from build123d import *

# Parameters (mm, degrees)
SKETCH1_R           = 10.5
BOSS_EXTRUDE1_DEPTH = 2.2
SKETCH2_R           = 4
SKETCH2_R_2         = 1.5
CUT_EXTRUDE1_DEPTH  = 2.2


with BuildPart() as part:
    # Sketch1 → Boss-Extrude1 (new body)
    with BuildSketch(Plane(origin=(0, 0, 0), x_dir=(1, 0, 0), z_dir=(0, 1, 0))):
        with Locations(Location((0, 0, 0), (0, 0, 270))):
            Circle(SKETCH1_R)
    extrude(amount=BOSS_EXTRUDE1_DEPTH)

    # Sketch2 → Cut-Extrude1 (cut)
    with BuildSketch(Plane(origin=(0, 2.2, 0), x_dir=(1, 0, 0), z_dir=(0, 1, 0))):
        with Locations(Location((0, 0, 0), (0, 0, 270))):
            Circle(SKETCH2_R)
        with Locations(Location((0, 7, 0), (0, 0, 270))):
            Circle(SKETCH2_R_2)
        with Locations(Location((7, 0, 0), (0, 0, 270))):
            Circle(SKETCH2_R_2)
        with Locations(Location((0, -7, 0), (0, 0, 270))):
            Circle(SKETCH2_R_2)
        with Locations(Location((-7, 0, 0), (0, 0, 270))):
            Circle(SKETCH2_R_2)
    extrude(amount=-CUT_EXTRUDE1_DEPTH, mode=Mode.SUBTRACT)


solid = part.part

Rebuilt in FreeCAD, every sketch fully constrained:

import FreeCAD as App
import Part
import Sketcher
from FreeCAD import Vector

doc = App.newDocument("Part")
params = doc.addObject("Spreadsheet::Sheet", "Params")
for row, (alias, value) in enumerate([
    ("sketch1_diameter", "21 mm"),
    ("pad1_length", "2.2 mm"),
    ("sketch2_diameter", "8 mm"),
    ("sketch2_diameter2", "3 mm"),
    ("pocket1_length", "2.2 mm"),
], start=1):
    params.set(f"A{row}", alias)
    params.set(f"B{row}", "=" + value)
    params.setAlias(f"B{row}", alias)

body = doc.addObject("PartDesign::Body", "Body")

# Sketch on XZ plane
sketch1 = body.newObject("Sketcher::SketchObject", "Sketch")
sketch1.AttachmentSupport = (doc.getObject("XZ_Plane"), [""])
sketch1.MapMode = "FlatFace"
sketch1.addGeometry(Part.Circle(Vector(0, 0, 0), Vector(0, 0, 1), 10.5), False)
sketch1.addConstraint(Sketcher.Constraint("Coincident", 0, 3, -1, 1))
sketch1.addConstraint(Sketcher.Constraint("Diameter", 0, 21.0))
sketch1.setExpression("Constraints[1]", "Params.sketch1_diameter")
pad1 = body.newObject("PartDesign::Pad", "Pad")
pad1.Profile = sketch1
pad1.setExpression("Length", "Params.pad1_length")
pad1.Reversed = True

# Sketch on XZ plane
sketch2 = body.newObject("Sketcher::SketchObject", "Sketch001")
sketch2.AttachmentSupport = (doc.getObject("XZ_Plane"), [""])
sketch2.MapMode = "FlatFace"
sketch2.AttachmentOffset = App.Placement(Vector(0, 0, -2.2), App.Rotation())
sketch2.addGeometry(Part.Circle(Vector(0, 0, 0), Vector(0, 0, 1), 4), False)
sketch2.addGeometry(Part.Circle(Vector(0, -7, 0), Vector(0, 0, 1), 1.5), False)
sketch2.addGeometry(Part.Circle(Vector(7, 0, 0), Vector(0, 0, 1), 1.5), False)
sketch2.addGeometry(Part.Circle(Vector(0, 7, 0), Vector(0, 0, 1), 1.5), False)
sketch2.addGeometry(Part.Circle(Vector(-7, 0, 0), Vector(0, 0, 1), 1.5), False)
sketch2.addConstraint(Sketcher.Constraint("Coincident", 0, 3, -1, 1))
sketch2.addConstraint(Sketcher.Constraint("Equal", 1, 2))
sketch2.addConstraint(Sketcher.Constraint("Equal", 2, 3))
sketch2.addConstraint(Sketcher.Constraint("Equal", 3, 4))
sketch2.addConstraint(Sketcher.Constraint("Symmetric", 1, 3, 3, 3, -1, 1))
sketch2.addConstraint(Sketcher.Constraint("Symmetric", 2, 3, 4, 3, -1, 1))
sketch2.addConstraint(Sketcher.Constraint("PointOnObject", 1, 3, -2))
sketch2.addConstraint(Sketcher.Constraint("PointOnObject", 2, 3, -1))
sketch2.addConstraint(Sketcher.Constraint("Diameter", 0, 8.0))
sketch2.addConstraint(Sketcher.Constraint("Diameter", 1, 3.0))
sketch2.addConstraint(Sketcher.Constraint("DistanceY", 1, 3, -1, 1, 7.0))
sketch2.addConstraint(Sketcher.Constraint("DistanceX", -1, 1, 2, 3, 7.0))
sketch2.setExpression("Constraints[8]", "Params.sketch2_diameter")
sketch2.setExpression("Constraints[9]", "Params.sketch2_diameter2")
pocket1 = body.newObject("PartDesign::Pocket", "Pocket")
pocket1.Profile = sketch2
pocket1.setExpression("Length", "Params.pocket1_length")
pocket1.Reversed = True

doc.recompute()
